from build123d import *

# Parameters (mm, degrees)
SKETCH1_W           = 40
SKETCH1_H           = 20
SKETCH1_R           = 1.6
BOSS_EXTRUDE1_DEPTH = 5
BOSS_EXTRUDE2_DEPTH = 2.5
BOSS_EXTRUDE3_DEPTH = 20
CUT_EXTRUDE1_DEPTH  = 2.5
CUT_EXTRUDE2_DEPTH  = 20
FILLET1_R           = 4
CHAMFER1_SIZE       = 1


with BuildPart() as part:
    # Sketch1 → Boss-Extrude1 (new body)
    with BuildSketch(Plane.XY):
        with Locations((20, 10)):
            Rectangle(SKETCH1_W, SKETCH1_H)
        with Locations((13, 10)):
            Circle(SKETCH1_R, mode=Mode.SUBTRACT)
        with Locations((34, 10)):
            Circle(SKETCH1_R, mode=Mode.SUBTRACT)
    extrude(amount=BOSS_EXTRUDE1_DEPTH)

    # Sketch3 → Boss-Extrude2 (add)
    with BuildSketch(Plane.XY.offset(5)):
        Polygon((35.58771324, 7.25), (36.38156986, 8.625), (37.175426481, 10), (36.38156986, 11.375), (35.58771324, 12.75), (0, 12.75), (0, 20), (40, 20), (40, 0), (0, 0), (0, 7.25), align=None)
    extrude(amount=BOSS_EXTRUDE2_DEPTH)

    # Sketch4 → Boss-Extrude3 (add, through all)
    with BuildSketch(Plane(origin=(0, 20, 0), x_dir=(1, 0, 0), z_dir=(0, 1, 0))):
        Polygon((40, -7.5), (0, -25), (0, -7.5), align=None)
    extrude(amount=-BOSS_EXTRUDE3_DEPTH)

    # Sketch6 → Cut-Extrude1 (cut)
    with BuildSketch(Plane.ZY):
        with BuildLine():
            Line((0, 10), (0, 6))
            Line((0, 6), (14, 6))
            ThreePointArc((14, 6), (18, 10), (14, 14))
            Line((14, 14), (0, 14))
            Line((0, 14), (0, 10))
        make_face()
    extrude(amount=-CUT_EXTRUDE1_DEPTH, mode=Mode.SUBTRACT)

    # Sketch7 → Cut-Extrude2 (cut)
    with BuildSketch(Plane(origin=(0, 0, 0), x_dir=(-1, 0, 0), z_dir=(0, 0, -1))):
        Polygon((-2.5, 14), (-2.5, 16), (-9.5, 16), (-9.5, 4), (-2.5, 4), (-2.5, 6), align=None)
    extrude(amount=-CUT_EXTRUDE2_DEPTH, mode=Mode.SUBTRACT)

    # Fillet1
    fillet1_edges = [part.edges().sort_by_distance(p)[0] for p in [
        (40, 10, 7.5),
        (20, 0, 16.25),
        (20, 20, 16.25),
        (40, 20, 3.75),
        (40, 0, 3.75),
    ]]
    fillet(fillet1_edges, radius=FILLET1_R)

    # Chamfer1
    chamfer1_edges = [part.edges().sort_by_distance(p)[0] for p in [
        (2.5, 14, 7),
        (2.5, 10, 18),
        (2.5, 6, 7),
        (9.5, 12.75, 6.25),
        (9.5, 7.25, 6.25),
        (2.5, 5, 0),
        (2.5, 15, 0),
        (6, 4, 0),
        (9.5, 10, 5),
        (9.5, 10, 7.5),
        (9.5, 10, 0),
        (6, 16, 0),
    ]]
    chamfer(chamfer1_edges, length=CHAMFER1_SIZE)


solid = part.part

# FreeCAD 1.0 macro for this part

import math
import FreeCAD as App
import Part
import Sketcher

V = App.Vector
Q = App.Units.Quantity


def edges_at(feature, points):
    """Names of the edges that pass closest to the given points."""
    edges = feature.Shape.Edges
    near = lambda p: min(range(len(edges)), key=lambda i: edges[i].distToShape(Part.Vertex(*p))[0])
    return sorted({f"Edge{near(p) + 1}" for p in points})

doc = App.newDocument("Part")
body = doc.addObject("PartDesign::Body", "Body")

sketch1 = body.newObject("Sketcher::SketchObject", "Sketch")
sketch1.AttachmentSupport = (doc.getObject("XY_Plane"), [""])
sketch1.MapMode = "FlatFace"
sketch1.addGeometry([
    Part.LineSegment(V(0, 20, 0), V(0, 0, 0)),
    Part.LineSegment(V(0, 0, 0), V(40, 0, 0)),
    Part.LineSegment(V(40, 0, 0), V(40, 20, 0)),
    Part.LineSegment(V(40, 20, 0), V(0, 20, 0)),
    Part.Circle(V(13, 10, 0), V(0, 0, 1), 1.6),
    Part.Circle(V(34, 10, 0), V(0, 0, 1), 1.6),
], False)
sketch1.addConstraint([
    Sketcher.Constraint("Coincident", 0, 2, 1, 1),
    Sketcher.Constraint("Coincident", 1, 2, 2, 1),
    Sketcher.Constraint("Coincident", 2, 2, 3, 1),
    Sketcher.Constraint("Coincident", 3, 2, 0, 1),
    Sketcher.Constraint("Vertical", 0),
    Sketcher.Constraint("Horizontal", 1),
    Sketcher.Constraint("Vertical", 2),
    Sketcher.Constraint("Horizontal", 3),
    Sketcher.Constraint("Coincident", 0, 2, -1, 1),
    Sketcher.Constraint("Equal", 4, 5),
    Sketcher.Constraint("Horizontal", 4, 3, 5, 3),
    Sketcher.Constraint("Diameter", 4, Q("3.2 mm")),
    Sketcher.Constraint("DistanceX", 1, 1, 1, 2, Q("40 mm")),
    Sketcher.Constraint("DistanceY", 0, 2, 0, 1, Q("20 mm")),
    Sketcher.Constraint("DistanceX", -1, 1, 4, 3, Q("13 mm")),
    Sketcher.Constraint("DistanceY", -1, 1, 4, 3, Q("10 mm")),
    Sketcher.Constraint("DistanceX", -1, 1, 5, 3, Q("34 mm")),
])
pad1 = body.newObject("PartDesign::Pad", "Pad")
pad1.Profile = sketch1
pad1.Length = 5

sketch2 = body.newObject("Sketcher::SketchObject", "Sketch001")
sketch2.AttachmentSupport = (doc.getObject("XY_Plane"), [""])
sketch2.MapMode = "FlatFace"
sketch2.AttachmentOffset = App.Placement(V(0, 0, 5), App.Rotation())
sketch2.addGeometry([
    Part.LineSegment(V(36.38157, 8.625, 0), V(35.587713, 7.25, 0)),
    Part.LineSegment(V(35.587713, 7.25, 0), V(0, 7.25, 0)),
    Part.LineSegment(V(0, 7.25, 0), V(0, 0, 0)),
    Part.LineSegment(V(0, 0, 0), V(40, 0, 0)),
    Part.LineSegment(V(40, 0, 0), V(40, 20, 0)),
    Part.LineSegment(V(40, 20, 0), V(0, 20, 0)),
    Part.LineSegment(V(0, 20, 0), V(0, 12.75, 0)),
    Part.LineSegment(V(0, 12.75, 0), V(35.587713, 12.75, 0)),
    Part.LineSegment(V(35.587713, 12.75, 0), V(36.38157, 11.375, 0)),
    Part.LineSegment(V(36.38157, 11.375, 0), V(37.175426, 10, 0)),
    Part.LineSegment(V(37.175426, 10, 0), V(36.38157, 8.625, 0)),
], False)
sketch2.addConstraint([
    Sketcher.Constraint("Coincident", 0, 2, 1, 1),
    Sketcher.Constraint("Coincident", 1, 2, 2, 1),
    Sketcher.Constraint("Coincident", 2, 2, 3, 1),
    Sketcher.Constraint("Coincident", 3, 2, 4, 1),
    Sketcher.Constraint("Coincident", 4, 2, 5, 1),
    Sketcher.Constraint("Coincident", 5, 2, 6, 1),
    Sketcher.Constraint("Coincident", 6, 2, 7, 1),
    Sketcher.Constraint("Coincident", 7, 2, 8, 1),
    Sketcher.Constraint("Coincident", 8, 2, 9, 1),
    Sketcher.Constraint("Coincident", 9, 2, 10, 1),
    Sketcher.Constraint("Coincident", 10, 2, 0, 1),
    Sketcher.Constraint("Horizontal", 1),
    Sketcher.Constraint("Vertical", 2),
    Sketcher.Constraint("Horizontal", 3),
    Sketcher.Constraint("Vertical", 4),
    Sketcher.Constraint("Horizontal", 5),
    Sketcher.Constraint("Vertical", 6),
    Sketcher.Constraint("Horizontal", 7),
    Sketcher.Constraint("Coincident", 2, 2, -1, 1),
    Sketcher.Constraint("PointOnObject", 5, 2, -2),
    Sketcher.Constraint("Parallel", 8, 9),
    Sketcher.Constraint("Parallel", 0, 10),
    Sketcher.Constraint("Vertical", 0, 2, 7, 2),
    Sketcher.Constraint("Vertical", 8, 2, 10, 2),
    Sketcher.Constraint("Equal", 2, 6),
    Sketcher.Constraint("Equal", 0, 8),
    Sketcher.Constraint("Equal", 8, 9),
    Sketcher.Constraint("DistanceX", 3, 1, 3, 2, Q("40 mm")),
    Sketcher.Constraint("DistanceY", 4, 1, 4, 2, Q("20 mm")),
    Sketcher.Constraint("Angle", 0, Q("-120 deg")),
    Sketcher.Constraint("DistanceY", 2, 2, 2, 1, Q("7.25 mm")),
    Sketcher.Constraint("DistanceX", 1, 2, 1, 1, Q("35.587713 mm")),
])
pad2 = body.newObject("PartDesign::Pad", "Pad001")
pad2.Profile = sketch2
pad2.Length = 2.5

sketch3 = body.newObject("Sketcher::SketchObject", "Sketch002")
sketch3.AttachmentSupport = (doc.getObject("XZ_Plane"), [""])
sketch3.MapMode = "FlatFace"
sketch3.AttachmentOffset = App.Placement(V(0, 0, -20), App.Rotation())
sketch3.addGeometry([
    Part.LineSegment(V(0, 25, 0), V(40, 7.5, 0)),
    Part.LineSegment(V(40, 7.5, 0), V(0, 7.5, 0)),
    Part.LineSegment(V(0, 7.5, 0), V(0, 25, 0)),
], False)
sketch3.addConstraint([
    Sketcher.Constraint("Coincident", 0, 2, 1, 1),
    Sketcher.Constraint("Coincident", 1, 2, 2, 1),
    Sketcher.Constraint("Coincident", 2, 2, 0, 1),
    Sketcher.Constraint("Horizontal", 1),
    Sketcher.Constraint("Vertical", 2),
    Sketcher.Constraint("PointOnObject", 1, 2, -2),
    Sketcher.Constraint("DistanceX", 1, 2, 1, 1, Q("40 mm")),
    Sketcher.Constraint("DistanceY", 2, 1, 2, 2, Q("17.5 mm")),
    Sketcher.Constraint("DistanceY", -1, 1, 2, 2, Q("25 mm")),
])
pad3 = body.newObject("PartDesign::Pad", "Pad002")
pad3.Profile = sketch3
pad3.Length = 20

sketch4 = body.newObject("Sketcher::SketchObject", "Sketch003")
sketch4.AttachmentSupport = (doc.getObject("YZ_Plane"), [""])
sketch4.MapMode = "FlatFace"
sketch4.addGeometry([
    Part.LineSegment(V(6, 0, 0), V(6, 14, 0)),
    Part.ArcOfCircle(Part.Circle(V(10, 14, 0), V(0, 0, 1), 4), math.radians(0), math.radians(180)),
    Part.LineSegment(V(14, 14, 0), V(14, 0, 0)),
    Part.LineSegment(V(14, 0, 0), V(6, 0, 0)),
], False)
sketch4.addConstraint([
    Sketcher.Constraint("Tangent", 0, 2, 1, 2),
    Sketcher.Constraint("Tangent", 1, 1, 2, 1),
    Sketcher.Constraint("Coincident", 2, 2, 3, 1),
    Sketcher.Constraint("Coincident", 3, 2, 0, 1),
    Sketcher.Constraint("Vertical", 0),
    Sketcher.Constraint("Vertical", 2),
    Sketcher.Constraint("Horizontal", 3),
    Sketcher.Constraint("PointOnObject", 2, 2, -1),
    Sketcher.Constraint("Radius", 1, Q("4 mm")),
    Sketcher.Constraint("DistanceY", 0, 1, 0, 2, Q("14 mm")),
    Sketcher.Constraint("DistanceX", -1, 1, 1, 3, Q("10 mm")),
])
pocket1 = body.newObject("PartDesign::Pocket", "Pocket")
pocket1.Profile = sketch4
pocket1.Length = 2.5
pocket1.Reversed = True

sketch5 = body.newObject("Sketcher::SketchObject", "Sketch004")
sketch5.AttachmentSupport = (doc.getObject("XY_Plane"), [""])
sketch5.MapMode = "FlatFace"
sketch5.addGeometry([
    Part.LineSegment(V(2.5, 16, 0), V(9.5, 16, 0)),
    Part.LineSegment(V(9.5, 16, 0), V(9.5, 4, 0)),
    Part.LineSegment(V(9.5, 4, 0), V(2.5, 4, 0)),
    Part.LineSegment(V(2.5, 4, 0), V(2.5, 16, 0)),
], False)
sketch5.addConstraint([
    Sketcher.Constraint("Coincident", 0, 2, 1, 1),
    Sketcher.Constraint("Coincident", 1, 2, 2, 1),
    Sketcher.Constraint("Coincident", 2, 2, 3, 1),
    Sketcher.Constraint("Coincident", 3, 2, 0, 1),
    Sketcher.Constraint("Horizontal", 0),
    Sketcher.Constraint("Vertical", 1),
    Sketcher.Constraint("Horizontal", 2),
    Sketcher.Constraint("Vertical", 3),
    Sketcher.Constraint("DistanceX", 0, 1, 0, 2, Q("7 mm")),
    Sketcher.Constraint("DistanceY", 1, 2, 1, 1, Q("12 mm")),
    Sketcher.Constraint("DistanceY", -1, 1, 0, 2, Q("16 mm")),
    Sketcher.Constraint("DistanceX", -1, 1, 0, 2, Q("9.5 mm")),
])
pocket2 = body.newObject("PartDesign::Pocket", "Pocket001")
pocket2.Profile = sketch5
pocket2.Length = 20
pocket2.Reversed = True
doc.recompute()

fillet = body.newObject("PartDesign::Fillet", "Fillet")
fillet.Base = (pocket2, edges_at(pocket2, [
    (40, 10, 7.5),
    (20, 0, 16.25),
    (20, 20, 16.25),
    (40, 20, 3.75),
    (40, 0, 3.75),
]))
fillet.Radius = 4
doc.recompute()

chamfer = body.newObject("PartDesign::Chamfer", "Chamfer")
chamfer.Base = (fillet, edges_at(fillet, [
    (2.5, 14, 7),
    (2.5, 10, 18),
    (2.5, 6, 7),
    (9.5, 12.75, 6.25),
    (9.5, 7.25, 6.25),
    (2.5, 5, 0),
    (2.5, 15, 0),
    (6, 4, 0),
    (9.5, 10, 5),
    (9.5, 10, 7.5),
    (9.5, 10, 0),
    (6, 16, 0),
]))
chamfer.Size = 1

doc.recompute()
